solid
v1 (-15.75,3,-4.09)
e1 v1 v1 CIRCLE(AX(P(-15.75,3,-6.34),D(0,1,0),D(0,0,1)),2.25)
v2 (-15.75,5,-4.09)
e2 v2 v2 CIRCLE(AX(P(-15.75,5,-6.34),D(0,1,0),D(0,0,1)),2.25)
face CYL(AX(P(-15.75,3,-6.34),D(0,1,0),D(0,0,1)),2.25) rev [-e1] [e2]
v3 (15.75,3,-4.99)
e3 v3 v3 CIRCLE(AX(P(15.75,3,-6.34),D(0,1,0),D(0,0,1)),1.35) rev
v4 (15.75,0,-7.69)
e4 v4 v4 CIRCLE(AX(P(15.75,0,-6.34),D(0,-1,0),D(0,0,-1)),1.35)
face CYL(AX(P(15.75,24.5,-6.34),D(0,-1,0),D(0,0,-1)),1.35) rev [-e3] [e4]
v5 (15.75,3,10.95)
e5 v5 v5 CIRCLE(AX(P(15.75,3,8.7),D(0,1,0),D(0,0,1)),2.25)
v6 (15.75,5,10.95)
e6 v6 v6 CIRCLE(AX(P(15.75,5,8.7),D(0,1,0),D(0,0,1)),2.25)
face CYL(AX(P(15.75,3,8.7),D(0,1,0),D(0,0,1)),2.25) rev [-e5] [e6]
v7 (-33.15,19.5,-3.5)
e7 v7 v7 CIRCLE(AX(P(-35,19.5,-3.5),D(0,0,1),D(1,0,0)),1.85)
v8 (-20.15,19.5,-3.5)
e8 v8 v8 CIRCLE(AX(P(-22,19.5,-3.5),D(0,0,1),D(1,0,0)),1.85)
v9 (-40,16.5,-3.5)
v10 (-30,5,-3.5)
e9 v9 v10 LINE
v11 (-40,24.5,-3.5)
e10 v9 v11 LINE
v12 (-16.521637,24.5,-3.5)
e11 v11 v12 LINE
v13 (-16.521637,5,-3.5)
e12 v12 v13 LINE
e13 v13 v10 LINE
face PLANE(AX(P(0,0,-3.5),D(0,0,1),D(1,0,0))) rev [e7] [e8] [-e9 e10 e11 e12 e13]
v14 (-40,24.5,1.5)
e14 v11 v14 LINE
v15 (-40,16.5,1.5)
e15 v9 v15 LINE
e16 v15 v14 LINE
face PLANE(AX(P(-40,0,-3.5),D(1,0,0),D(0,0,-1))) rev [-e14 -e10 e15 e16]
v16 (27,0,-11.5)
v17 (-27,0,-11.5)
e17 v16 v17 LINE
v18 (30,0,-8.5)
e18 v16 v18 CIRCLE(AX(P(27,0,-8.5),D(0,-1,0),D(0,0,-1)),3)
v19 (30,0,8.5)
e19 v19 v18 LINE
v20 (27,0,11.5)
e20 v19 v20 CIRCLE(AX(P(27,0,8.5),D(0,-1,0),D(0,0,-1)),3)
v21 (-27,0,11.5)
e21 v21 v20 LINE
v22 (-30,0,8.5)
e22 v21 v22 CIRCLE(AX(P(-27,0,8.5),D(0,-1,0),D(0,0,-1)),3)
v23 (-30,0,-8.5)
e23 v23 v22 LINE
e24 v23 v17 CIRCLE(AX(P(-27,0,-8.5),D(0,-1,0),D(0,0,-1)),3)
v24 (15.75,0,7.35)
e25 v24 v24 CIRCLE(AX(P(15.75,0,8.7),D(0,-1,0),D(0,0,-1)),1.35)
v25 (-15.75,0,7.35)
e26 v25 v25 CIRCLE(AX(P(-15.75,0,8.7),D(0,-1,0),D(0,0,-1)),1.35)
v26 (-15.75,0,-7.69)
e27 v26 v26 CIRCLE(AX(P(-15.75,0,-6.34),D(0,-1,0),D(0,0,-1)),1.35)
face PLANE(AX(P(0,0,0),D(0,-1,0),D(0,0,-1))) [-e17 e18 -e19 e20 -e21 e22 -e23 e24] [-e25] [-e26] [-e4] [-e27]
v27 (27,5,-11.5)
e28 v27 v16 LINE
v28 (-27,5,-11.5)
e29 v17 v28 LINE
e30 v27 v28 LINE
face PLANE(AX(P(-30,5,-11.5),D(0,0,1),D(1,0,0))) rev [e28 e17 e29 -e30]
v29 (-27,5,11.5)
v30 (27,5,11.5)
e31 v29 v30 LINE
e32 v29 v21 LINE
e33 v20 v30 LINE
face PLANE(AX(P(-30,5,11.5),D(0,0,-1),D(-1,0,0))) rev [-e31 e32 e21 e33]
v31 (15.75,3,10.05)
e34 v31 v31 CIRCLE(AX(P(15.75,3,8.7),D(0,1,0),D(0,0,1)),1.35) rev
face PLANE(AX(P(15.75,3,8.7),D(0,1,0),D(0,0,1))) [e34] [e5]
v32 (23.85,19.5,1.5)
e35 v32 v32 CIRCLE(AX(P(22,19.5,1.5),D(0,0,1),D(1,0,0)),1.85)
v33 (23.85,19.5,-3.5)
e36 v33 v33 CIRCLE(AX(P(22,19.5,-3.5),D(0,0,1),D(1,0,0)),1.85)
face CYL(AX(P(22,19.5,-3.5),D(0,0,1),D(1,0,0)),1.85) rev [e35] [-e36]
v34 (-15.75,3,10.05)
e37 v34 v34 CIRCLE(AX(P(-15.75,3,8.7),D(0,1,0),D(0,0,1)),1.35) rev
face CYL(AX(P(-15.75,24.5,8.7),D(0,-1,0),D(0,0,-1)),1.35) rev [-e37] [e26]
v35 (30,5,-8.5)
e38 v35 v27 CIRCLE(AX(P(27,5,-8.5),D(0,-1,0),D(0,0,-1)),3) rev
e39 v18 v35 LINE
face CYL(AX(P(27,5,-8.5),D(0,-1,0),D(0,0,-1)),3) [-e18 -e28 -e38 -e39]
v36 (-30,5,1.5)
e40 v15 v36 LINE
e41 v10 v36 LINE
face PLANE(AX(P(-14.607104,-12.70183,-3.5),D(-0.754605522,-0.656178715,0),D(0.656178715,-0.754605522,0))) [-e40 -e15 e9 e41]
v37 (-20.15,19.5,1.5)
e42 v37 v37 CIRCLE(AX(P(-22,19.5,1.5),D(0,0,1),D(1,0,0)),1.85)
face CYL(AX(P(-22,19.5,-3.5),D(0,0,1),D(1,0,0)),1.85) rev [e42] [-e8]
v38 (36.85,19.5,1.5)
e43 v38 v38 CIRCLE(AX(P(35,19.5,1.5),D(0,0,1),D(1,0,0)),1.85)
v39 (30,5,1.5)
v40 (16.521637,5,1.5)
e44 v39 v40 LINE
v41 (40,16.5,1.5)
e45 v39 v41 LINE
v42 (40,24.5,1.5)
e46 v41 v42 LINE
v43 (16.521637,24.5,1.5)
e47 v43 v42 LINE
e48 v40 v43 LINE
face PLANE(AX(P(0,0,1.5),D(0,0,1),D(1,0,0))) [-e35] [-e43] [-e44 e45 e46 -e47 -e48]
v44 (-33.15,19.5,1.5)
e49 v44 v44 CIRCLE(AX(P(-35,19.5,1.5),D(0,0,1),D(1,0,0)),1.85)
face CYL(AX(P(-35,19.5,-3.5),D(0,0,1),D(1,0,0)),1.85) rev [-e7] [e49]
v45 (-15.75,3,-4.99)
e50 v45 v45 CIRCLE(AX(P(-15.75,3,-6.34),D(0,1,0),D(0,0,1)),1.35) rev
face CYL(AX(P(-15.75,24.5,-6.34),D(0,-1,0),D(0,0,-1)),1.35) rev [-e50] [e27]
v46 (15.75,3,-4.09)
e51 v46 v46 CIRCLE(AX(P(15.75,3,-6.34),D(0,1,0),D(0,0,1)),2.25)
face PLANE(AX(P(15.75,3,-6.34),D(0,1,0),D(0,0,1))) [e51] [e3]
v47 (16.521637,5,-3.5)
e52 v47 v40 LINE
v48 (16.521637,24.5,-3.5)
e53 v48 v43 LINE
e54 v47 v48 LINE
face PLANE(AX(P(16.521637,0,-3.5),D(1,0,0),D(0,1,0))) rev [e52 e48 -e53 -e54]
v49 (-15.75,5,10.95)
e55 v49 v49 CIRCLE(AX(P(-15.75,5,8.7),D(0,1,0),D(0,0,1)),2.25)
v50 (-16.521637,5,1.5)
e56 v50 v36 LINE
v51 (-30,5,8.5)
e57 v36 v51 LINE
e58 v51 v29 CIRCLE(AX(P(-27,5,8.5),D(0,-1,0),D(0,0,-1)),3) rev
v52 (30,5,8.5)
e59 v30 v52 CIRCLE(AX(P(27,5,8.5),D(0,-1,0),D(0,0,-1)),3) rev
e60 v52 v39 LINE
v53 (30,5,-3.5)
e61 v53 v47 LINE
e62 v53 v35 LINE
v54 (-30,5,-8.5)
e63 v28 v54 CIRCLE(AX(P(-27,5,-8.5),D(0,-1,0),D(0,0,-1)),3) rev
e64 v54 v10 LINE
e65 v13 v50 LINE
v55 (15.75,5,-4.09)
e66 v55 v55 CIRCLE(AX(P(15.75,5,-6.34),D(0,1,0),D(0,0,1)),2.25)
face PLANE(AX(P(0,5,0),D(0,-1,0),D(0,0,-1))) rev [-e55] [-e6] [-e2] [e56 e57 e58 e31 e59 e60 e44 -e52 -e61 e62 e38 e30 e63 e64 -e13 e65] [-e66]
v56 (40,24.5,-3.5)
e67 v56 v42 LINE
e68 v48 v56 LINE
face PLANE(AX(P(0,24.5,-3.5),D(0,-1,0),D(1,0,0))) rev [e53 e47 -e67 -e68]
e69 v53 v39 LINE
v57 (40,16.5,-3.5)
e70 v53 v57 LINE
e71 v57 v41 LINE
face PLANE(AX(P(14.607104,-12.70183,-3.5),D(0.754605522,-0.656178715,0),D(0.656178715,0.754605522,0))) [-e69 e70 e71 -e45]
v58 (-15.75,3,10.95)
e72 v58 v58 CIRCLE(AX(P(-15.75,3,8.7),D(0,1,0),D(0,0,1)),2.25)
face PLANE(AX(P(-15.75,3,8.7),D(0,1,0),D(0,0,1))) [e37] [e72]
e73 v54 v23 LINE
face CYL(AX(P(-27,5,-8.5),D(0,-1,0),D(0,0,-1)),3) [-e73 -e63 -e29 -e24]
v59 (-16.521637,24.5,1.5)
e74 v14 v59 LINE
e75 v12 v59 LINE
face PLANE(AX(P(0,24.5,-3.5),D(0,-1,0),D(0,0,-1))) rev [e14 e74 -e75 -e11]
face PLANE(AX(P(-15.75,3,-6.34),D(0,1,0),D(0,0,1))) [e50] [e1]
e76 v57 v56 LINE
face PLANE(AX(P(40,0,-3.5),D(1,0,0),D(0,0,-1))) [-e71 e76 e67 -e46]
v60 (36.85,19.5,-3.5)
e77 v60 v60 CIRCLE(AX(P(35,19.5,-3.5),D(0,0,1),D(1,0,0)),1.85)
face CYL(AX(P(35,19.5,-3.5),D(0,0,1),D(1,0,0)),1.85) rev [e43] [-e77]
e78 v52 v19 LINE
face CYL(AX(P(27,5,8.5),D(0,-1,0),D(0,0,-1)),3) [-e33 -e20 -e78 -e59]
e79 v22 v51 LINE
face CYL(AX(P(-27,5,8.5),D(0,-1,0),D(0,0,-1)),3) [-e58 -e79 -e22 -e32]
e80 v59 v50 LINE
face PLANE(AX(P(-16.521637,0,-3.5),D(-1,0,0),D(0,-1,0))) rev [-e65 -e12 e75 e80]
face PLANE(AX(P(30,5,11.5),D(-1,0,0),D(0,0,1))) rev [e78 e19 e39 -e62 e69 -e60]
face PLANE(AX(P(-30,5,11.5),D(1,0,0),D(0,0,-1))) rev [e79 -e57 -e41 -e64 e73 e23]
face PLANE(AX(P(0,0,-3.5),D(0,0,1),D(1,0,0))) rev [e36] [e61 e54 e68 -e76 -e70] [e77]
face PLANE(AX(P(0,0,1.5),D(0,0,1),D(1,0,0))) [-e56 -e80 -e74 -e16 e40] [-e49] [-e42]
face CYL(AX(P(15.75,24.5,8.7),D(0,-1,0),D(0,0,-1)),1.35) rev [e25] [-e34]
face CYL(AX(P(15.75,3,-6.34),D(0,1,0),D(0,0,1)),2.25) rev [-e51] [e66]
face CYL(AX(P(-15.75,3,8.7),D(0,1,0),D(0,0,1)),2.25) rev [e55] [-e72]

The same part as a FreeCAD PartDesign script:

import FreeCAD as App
import Part
import Sketcher
from FreeCAD import Vector


def edges_at(feature, points):
    """Names of the edges that pass closest to the given points."""
    edges = feature.Shape.Edges
    near = lambda p: min(range(len(edges)), key=lambda i: edges[i].distToShape(Part.Vertex(*p))[0])
    return sorted({f"Edge{near(p) + 1}" for p in points})

doc = App.newDocument("Part")
params = doc.addObject("Spreadsheet::Sheet", "Params")
for row, (alias, value) in enumerate([
    ("sketch1_width", "60 mm"),
    ("sketch1_height", "23 mm"),
    ("pad1_length", "5 mm"),
    ("sketch2_diameter", "3.7 mm"),
    ("sketch2_height", "8 mm"),
    ("sketch2_height2", "19.5 mm"),
    ("pad2_length", "5 mm"),
    ("sketch3_diameter", "2.7 mm"),
    ("sketch4_diameter", "4.5 mm"),
    ("pocket2_length", "2 mm"),
    ("fillet_radius", "3 mm"),
], start=1):
    params.set(f"A{row}", alias)
    params.set(f"B{row}", "=" + value)
    params.setAlias(f"B{row}", alias)

body = doc.addObject("PartDesign::Body", "Body")

# Sketch on XZ plane
sketch1 = body.newObject("Sketcher::SketchObject", "Sketch")
sketch1.AttachmentSupport = (doc.getObject("XZ_Plane"), [""])
sketch1.MapMode = "FlatFace"
sketch1.addGeometry([
    Part.LineSegment(Vector(-30, -12, 0), Vector(-30, 12, 0)),
    Part.LineSegment(Vector(-30, 12, 0), Vector(30, 12, 0)),
    Part.LineSegment(Vector(30, 12, 0), Vector(30, -12, 0)),
    Part.LineSegment(Vector(30, -12, 0), Vector(-30, -12, 0)),
], False)
sketch1.addConstraint([
    Sketcher.Constraint("Coincident", 0, 2, 1, 1),
    Sketcher.Constraint("Coincident", 1, 2, 2, 1),
    Sketcher.Constraint("Coincident", 2, 2, 3, 1),
    Sketcher.Constraint("Coincident", 3, 2, 0, 1),
    Sketcher.Constraint("Vertical", 0),
    Sketcher.Constraint("Horizontal", 1),
    Sketcher.Constraint("Vertical", 2),
    Sketcher.Constraint("Horizontal", 3),
    Sketcher.Constraint("Symmetric", 0, 2, 2, 2, -1, 1),
    Sketcher.Constraint("DistanceX", 1, 1, 1, 2, 60.0),
    Sketcher.Constraint("DistanceY", 0, 1, 0, 2, 23.0),
])
sketch1.setExpression("Constraints[9]", "Params.sketch1_width")
sketch1.setExpression("Constraints[10]", "Params.sketch1_height")
pad1 = body.newObject("PartDesign::Pad", "Pad")
pad1.Profile = sketch1
pad1.setExpression("Length", "Params.pad1_length")
pad1.Reversed = True

# Sketch on XY plane
sketch2 = body.newObject("Sketcher::SketchObject", "Sketch001")
sketch2.AttachmentSupport = (doc.getObject("XY_Plane"), [""])
sketch2.MapMode = "FlatFace"
sketch2.AttachmentOffset = App.Placement(Vector(0, 0, 1.5), App.Rotation())
sketch2.addGeometry([
    Part.LineSegment(Vector(-40, 16.5, 0), Vector(-30, 5, 0)),  # 0
    Part.LineSegment(Vector(-30, 5, 0), Vector(-16.5, 5, 0)),  # 1
    Part.LineSegment(Vector(-16.5, 5, 0), Vector(-16.5, 24.5, 0)),  # 2
    Part.LineSegment(Vector(-16.5, 24.5, 0), Vector(-40, 24.5, 0)),  # 3
    Part.LineSegment(Vector(-40, 24.5, 0), Vector(-40, 16.5, 0)),  # 4
    Part.Circle(Vector(-35, 19.5, 0), Vector(0, 0, 1), 1.9),  # 5
    Part.Circle(Vector(-22, 19.5, 0), Vector(0, 0, 1), 1.9),  # 6
    Part.LineSegment(Vector(40, 16.5, 0), Vector(40, 24.5, 0)),  # 7
    Part.LineSegment(Vector(40, 24.5, 0), Vector(16.5, 24.5, 0)),  # 8
    Part.LineSegment(Vector(16.5, 24.5, 0), Vector(16.5, 5, 0)),  # 9
    Part.LineSegment(Vector(16.5, 5, 0), Vector(30, 5, 0)),  # 10
    Part.LineSegment(Vector(30, 5, 0), Vector(40, 16.5, 0)),  # 11
    Part.Circle(Vector(22, 19.5, 0), Vector(0, 0, 1), 1.9),  # 12
    Part.Circle(Vector(35, 19.5, 0), Vector(0, 0, 1), 1.9),  # 13
], False)
sketch2.addConstraint([
    Sketcher.Constraint("Coincident", 0, 2, 1, 1),
    Sketcher.Constraint("Coincident", 1, 2, 2, 1),
    Sketcher.Constraint("Coincident", 2, 2, 3, 1),
    Sketcher.Constraint("Coincident", 3, 2, 4, 1),
    Sketcher.Constraint("Coincident", 4, 2, 0, 1),
    Sketcher.Constraint("Coincident", 7, 2, 8, 1),
    Sketcher.Constraint("Coincident", 8, 2, 9, 1),
    Sketcher.Constraint("Coincident", 9, 2, 10, 1),
    Sketcher.Constraint("Coincident", 10, 2, 11, 1),
    Sketcher.Constraint("Coincident", 11, 2, 7, 1),
    Sketcher.Constraint("Horizontal", 1),
    Sketcher.Constraint("Vertical", 2),
    Sketcher.Constraint("Horizontal", 3),
    Sketcher.Constraint("Vertical", 4),
    Sketcher.Constraint("Vertical", 7),
    Sketcher.Constraint("Horizontal", 8),
    Sketcher.Constraint("Vertical", 9),
    Sketcher.Constraint("Horizontal", 10),
    Sketcher.Constraint("Equal", 5, 6),
    Sketcher.Constraint("Equal", 6, 12),
    Sketcher.Constraint("Equal", 12, 13),
    Sketcher.Constraint("Symmetric", 6, 3, 12, 3, -2),
    Sketcher.Constraint("Symmetric", 5, 3, 13, 3, -2),
    Sketcher.Constraint("Symmetric", 3, 2, 7, 2, -2),
    Sketcher.Constraint("Symmetric", 1, 2, 9, 2, -2),
    Sketcher.Constraint("Horizontal", 5, 3, 6, 3),
    Sketcher.Constraint("Horizontal", 4, 2, 11, 2),
    Sketcher.Constraint("Equal", 1, 10),
    Sketcher.Constraint("Diameter", 5, 3.7),
    Sketcher.Constraint("DistanceY", 4, 2, 4, 1, 8.0),
    Sketcher.Constraint("DistanceY", 2, 1, 2, 2, 19.5),
    Sketcher.Constraint("DistanceX", 5, 3, -1, 1, 35.0),
    Sketcher.Constraint("DistanceX", 6, 3, -1, 1, 22.0),
    Sketcher.Constraint("DistanceX", 0, 2, -1, 1, 30.0),
    Sketcher.Constraint("DistanceY", -1, 1, 0, 2, 5.0),
    Sketcher.Constraint("DistanceX", 3, 2, -1, 1, 40.0),
    Sketcher.Constraint("DistanceY", 6, 3, 2, 2, 5.0),
    Sketcher.Constraint("DistanceX", 1, 1, 1, 2, 13.478363),
])
sketch2.setExpression("Constraints[28]", "Params.sketch2_diameter")
sketch2.setExpression("Constraints[29]", "Params.sketch2_height")
sketch2.setExpression("Constraints[30]", "Params.sketch2_height2")
pad2 = body.newObject("PartDesign::Pad", "Pad001")
pad2.Profile = sketch2
pad2.setExpression("Length", "Params.pad2_length")
pad2.Reversed = True

# Sketch on XZ plane
sketch3 = body.newObject("Sketcher::SketchObject", "Sketch002")
sketch3.AttachmentSupport = (doc.getObject("XZ_Plane"), [""])
sketch3.MapMode = "FlatFace"
sketch3.addGeometry([
    Part.Circle(Vector(-15.8, 8.7, 0), Vector(0, 0, 1), 1.4),
    Part.Circle(Vector(15.8, 8.7, 0), Vector(0, 0, 1), 1.4),
    Part.Circle(Vector(15.8, -6.3, 0), Vector(0, 0, 1), 1.4),
    Part.Circle(Vector(-15.8, -6.3, 0), Vector(0, 0, 1), 1.4),
], False)
sketch3.addConstraint([
    Sketcher.Constraint("Equal", 0, 1),
    Sketcher.Constraint("Equal", 1, 2),
    Sketcher.Constraint("Equal", 2, 3),
    Sketcher.Constraint("Symmetric", 0, 3, 1, 3, -2),
    Sketcher.Constraint("Symmetric", 2, 3, 3, 3, -2),
    Sketcher.Constraint("Vertical", 1, 3, 2, 3),
    Sketcher.Constraint("Diameter", 0, 2.7),
    Sketcher.Constraint("DistanceY", -1, 1, 0, 3, 8.7),
    Sketcher.Constraint("DistanceX", 0, 3, 1, 3, 31.5),
    Sketcher.Constraint("DistanceY", 2, 3, -1, 1, 6.34),
])
sketch3.setExpression("Constraints[6]", "Params.sketch3_diameter")
pocket1 = body.newObject("PartDesign::Pocket", "Pocket")
pocket1.Profile = sketch3
pocket1.Type = "ThroughAll"

# Sketch on XZ plane
sketch4 = body.newObject("Sketcher::SketchObject", "Sketch003")
sketch4.AttachmentSupport = (doc.getObject("XZ_Plane"), [""])
sketch4.MapMode = "FlatFace"
sketch4.AttachmentOffset = App.Placement(Vector(0, 0, -5), App.Rotation())
sketch4.addGeometry([
    Part.Circle(Vector(-15.8, -6.3, 0), Vector(0, 0, 1), 2.2),
    Part.Circle(Vector(15.8, -6.3, 0), Vector(0, 0, 1), 2.2),
    Part.Circle(Vector(15.8, 8.7, 0), Vector(0, 0, 1), 2.2),
    Part.Circle(Vector(-15.8, 8.7, 0), Vector(0, 0, 1), 2.2),
], False)
sketch4.addConstraint([
    Sketcher.Constraint("Equal", 0, 1),
    Sketcher.Constraint("Equal", 1, 2),
    Sketcher.Constraint("Equal", 2, 3),
    Sketcher.Constraint("Symmetric", 0, 3, 1, 3, -2),
    Sketcher.Constraint("Symmetric", 2, 3, 3, 3, -2),
    Sketcher.Constraint("Vertical", 1, 3, 2, 3),
    Sketcher.Constraint("Diameter", 0, 4.5),
    Sketcher.Constraint("DistanceY", -1, 1, 2, 3, 8.7),
    Sketcher.Constraint("DistanceX", 0, 3, 1, 3, 31.5),
    Sketcher.Constraint("DistanceY", 0, 3, -1, 1, 6.34),
])
sketch4.setExpression("Constraints[6]", "Params.sketch4_diameter")
pocket2 = body.newObject("PartDesign::Pocket", "Pocket001")
pocket2.Profile = sketch4
pocket2.setExpression("Length", "Params.pocket2_length")
pocket2.Reversed = True
doc.recompute()

fillet = body.newObject("PartDesign::Fillet", "Fillet")
fillet.Base = (pocket2, edges_at(pocket2, [
    (30, 2.5, 11.5),
    (-30, 2.5, 11.5),
    (-30, 2.5, -11.5),
    (30, 2.5, -11.5),
]))
fillet.setExpression("Radius", "Params.fillet_radius")

doc.recompute()
